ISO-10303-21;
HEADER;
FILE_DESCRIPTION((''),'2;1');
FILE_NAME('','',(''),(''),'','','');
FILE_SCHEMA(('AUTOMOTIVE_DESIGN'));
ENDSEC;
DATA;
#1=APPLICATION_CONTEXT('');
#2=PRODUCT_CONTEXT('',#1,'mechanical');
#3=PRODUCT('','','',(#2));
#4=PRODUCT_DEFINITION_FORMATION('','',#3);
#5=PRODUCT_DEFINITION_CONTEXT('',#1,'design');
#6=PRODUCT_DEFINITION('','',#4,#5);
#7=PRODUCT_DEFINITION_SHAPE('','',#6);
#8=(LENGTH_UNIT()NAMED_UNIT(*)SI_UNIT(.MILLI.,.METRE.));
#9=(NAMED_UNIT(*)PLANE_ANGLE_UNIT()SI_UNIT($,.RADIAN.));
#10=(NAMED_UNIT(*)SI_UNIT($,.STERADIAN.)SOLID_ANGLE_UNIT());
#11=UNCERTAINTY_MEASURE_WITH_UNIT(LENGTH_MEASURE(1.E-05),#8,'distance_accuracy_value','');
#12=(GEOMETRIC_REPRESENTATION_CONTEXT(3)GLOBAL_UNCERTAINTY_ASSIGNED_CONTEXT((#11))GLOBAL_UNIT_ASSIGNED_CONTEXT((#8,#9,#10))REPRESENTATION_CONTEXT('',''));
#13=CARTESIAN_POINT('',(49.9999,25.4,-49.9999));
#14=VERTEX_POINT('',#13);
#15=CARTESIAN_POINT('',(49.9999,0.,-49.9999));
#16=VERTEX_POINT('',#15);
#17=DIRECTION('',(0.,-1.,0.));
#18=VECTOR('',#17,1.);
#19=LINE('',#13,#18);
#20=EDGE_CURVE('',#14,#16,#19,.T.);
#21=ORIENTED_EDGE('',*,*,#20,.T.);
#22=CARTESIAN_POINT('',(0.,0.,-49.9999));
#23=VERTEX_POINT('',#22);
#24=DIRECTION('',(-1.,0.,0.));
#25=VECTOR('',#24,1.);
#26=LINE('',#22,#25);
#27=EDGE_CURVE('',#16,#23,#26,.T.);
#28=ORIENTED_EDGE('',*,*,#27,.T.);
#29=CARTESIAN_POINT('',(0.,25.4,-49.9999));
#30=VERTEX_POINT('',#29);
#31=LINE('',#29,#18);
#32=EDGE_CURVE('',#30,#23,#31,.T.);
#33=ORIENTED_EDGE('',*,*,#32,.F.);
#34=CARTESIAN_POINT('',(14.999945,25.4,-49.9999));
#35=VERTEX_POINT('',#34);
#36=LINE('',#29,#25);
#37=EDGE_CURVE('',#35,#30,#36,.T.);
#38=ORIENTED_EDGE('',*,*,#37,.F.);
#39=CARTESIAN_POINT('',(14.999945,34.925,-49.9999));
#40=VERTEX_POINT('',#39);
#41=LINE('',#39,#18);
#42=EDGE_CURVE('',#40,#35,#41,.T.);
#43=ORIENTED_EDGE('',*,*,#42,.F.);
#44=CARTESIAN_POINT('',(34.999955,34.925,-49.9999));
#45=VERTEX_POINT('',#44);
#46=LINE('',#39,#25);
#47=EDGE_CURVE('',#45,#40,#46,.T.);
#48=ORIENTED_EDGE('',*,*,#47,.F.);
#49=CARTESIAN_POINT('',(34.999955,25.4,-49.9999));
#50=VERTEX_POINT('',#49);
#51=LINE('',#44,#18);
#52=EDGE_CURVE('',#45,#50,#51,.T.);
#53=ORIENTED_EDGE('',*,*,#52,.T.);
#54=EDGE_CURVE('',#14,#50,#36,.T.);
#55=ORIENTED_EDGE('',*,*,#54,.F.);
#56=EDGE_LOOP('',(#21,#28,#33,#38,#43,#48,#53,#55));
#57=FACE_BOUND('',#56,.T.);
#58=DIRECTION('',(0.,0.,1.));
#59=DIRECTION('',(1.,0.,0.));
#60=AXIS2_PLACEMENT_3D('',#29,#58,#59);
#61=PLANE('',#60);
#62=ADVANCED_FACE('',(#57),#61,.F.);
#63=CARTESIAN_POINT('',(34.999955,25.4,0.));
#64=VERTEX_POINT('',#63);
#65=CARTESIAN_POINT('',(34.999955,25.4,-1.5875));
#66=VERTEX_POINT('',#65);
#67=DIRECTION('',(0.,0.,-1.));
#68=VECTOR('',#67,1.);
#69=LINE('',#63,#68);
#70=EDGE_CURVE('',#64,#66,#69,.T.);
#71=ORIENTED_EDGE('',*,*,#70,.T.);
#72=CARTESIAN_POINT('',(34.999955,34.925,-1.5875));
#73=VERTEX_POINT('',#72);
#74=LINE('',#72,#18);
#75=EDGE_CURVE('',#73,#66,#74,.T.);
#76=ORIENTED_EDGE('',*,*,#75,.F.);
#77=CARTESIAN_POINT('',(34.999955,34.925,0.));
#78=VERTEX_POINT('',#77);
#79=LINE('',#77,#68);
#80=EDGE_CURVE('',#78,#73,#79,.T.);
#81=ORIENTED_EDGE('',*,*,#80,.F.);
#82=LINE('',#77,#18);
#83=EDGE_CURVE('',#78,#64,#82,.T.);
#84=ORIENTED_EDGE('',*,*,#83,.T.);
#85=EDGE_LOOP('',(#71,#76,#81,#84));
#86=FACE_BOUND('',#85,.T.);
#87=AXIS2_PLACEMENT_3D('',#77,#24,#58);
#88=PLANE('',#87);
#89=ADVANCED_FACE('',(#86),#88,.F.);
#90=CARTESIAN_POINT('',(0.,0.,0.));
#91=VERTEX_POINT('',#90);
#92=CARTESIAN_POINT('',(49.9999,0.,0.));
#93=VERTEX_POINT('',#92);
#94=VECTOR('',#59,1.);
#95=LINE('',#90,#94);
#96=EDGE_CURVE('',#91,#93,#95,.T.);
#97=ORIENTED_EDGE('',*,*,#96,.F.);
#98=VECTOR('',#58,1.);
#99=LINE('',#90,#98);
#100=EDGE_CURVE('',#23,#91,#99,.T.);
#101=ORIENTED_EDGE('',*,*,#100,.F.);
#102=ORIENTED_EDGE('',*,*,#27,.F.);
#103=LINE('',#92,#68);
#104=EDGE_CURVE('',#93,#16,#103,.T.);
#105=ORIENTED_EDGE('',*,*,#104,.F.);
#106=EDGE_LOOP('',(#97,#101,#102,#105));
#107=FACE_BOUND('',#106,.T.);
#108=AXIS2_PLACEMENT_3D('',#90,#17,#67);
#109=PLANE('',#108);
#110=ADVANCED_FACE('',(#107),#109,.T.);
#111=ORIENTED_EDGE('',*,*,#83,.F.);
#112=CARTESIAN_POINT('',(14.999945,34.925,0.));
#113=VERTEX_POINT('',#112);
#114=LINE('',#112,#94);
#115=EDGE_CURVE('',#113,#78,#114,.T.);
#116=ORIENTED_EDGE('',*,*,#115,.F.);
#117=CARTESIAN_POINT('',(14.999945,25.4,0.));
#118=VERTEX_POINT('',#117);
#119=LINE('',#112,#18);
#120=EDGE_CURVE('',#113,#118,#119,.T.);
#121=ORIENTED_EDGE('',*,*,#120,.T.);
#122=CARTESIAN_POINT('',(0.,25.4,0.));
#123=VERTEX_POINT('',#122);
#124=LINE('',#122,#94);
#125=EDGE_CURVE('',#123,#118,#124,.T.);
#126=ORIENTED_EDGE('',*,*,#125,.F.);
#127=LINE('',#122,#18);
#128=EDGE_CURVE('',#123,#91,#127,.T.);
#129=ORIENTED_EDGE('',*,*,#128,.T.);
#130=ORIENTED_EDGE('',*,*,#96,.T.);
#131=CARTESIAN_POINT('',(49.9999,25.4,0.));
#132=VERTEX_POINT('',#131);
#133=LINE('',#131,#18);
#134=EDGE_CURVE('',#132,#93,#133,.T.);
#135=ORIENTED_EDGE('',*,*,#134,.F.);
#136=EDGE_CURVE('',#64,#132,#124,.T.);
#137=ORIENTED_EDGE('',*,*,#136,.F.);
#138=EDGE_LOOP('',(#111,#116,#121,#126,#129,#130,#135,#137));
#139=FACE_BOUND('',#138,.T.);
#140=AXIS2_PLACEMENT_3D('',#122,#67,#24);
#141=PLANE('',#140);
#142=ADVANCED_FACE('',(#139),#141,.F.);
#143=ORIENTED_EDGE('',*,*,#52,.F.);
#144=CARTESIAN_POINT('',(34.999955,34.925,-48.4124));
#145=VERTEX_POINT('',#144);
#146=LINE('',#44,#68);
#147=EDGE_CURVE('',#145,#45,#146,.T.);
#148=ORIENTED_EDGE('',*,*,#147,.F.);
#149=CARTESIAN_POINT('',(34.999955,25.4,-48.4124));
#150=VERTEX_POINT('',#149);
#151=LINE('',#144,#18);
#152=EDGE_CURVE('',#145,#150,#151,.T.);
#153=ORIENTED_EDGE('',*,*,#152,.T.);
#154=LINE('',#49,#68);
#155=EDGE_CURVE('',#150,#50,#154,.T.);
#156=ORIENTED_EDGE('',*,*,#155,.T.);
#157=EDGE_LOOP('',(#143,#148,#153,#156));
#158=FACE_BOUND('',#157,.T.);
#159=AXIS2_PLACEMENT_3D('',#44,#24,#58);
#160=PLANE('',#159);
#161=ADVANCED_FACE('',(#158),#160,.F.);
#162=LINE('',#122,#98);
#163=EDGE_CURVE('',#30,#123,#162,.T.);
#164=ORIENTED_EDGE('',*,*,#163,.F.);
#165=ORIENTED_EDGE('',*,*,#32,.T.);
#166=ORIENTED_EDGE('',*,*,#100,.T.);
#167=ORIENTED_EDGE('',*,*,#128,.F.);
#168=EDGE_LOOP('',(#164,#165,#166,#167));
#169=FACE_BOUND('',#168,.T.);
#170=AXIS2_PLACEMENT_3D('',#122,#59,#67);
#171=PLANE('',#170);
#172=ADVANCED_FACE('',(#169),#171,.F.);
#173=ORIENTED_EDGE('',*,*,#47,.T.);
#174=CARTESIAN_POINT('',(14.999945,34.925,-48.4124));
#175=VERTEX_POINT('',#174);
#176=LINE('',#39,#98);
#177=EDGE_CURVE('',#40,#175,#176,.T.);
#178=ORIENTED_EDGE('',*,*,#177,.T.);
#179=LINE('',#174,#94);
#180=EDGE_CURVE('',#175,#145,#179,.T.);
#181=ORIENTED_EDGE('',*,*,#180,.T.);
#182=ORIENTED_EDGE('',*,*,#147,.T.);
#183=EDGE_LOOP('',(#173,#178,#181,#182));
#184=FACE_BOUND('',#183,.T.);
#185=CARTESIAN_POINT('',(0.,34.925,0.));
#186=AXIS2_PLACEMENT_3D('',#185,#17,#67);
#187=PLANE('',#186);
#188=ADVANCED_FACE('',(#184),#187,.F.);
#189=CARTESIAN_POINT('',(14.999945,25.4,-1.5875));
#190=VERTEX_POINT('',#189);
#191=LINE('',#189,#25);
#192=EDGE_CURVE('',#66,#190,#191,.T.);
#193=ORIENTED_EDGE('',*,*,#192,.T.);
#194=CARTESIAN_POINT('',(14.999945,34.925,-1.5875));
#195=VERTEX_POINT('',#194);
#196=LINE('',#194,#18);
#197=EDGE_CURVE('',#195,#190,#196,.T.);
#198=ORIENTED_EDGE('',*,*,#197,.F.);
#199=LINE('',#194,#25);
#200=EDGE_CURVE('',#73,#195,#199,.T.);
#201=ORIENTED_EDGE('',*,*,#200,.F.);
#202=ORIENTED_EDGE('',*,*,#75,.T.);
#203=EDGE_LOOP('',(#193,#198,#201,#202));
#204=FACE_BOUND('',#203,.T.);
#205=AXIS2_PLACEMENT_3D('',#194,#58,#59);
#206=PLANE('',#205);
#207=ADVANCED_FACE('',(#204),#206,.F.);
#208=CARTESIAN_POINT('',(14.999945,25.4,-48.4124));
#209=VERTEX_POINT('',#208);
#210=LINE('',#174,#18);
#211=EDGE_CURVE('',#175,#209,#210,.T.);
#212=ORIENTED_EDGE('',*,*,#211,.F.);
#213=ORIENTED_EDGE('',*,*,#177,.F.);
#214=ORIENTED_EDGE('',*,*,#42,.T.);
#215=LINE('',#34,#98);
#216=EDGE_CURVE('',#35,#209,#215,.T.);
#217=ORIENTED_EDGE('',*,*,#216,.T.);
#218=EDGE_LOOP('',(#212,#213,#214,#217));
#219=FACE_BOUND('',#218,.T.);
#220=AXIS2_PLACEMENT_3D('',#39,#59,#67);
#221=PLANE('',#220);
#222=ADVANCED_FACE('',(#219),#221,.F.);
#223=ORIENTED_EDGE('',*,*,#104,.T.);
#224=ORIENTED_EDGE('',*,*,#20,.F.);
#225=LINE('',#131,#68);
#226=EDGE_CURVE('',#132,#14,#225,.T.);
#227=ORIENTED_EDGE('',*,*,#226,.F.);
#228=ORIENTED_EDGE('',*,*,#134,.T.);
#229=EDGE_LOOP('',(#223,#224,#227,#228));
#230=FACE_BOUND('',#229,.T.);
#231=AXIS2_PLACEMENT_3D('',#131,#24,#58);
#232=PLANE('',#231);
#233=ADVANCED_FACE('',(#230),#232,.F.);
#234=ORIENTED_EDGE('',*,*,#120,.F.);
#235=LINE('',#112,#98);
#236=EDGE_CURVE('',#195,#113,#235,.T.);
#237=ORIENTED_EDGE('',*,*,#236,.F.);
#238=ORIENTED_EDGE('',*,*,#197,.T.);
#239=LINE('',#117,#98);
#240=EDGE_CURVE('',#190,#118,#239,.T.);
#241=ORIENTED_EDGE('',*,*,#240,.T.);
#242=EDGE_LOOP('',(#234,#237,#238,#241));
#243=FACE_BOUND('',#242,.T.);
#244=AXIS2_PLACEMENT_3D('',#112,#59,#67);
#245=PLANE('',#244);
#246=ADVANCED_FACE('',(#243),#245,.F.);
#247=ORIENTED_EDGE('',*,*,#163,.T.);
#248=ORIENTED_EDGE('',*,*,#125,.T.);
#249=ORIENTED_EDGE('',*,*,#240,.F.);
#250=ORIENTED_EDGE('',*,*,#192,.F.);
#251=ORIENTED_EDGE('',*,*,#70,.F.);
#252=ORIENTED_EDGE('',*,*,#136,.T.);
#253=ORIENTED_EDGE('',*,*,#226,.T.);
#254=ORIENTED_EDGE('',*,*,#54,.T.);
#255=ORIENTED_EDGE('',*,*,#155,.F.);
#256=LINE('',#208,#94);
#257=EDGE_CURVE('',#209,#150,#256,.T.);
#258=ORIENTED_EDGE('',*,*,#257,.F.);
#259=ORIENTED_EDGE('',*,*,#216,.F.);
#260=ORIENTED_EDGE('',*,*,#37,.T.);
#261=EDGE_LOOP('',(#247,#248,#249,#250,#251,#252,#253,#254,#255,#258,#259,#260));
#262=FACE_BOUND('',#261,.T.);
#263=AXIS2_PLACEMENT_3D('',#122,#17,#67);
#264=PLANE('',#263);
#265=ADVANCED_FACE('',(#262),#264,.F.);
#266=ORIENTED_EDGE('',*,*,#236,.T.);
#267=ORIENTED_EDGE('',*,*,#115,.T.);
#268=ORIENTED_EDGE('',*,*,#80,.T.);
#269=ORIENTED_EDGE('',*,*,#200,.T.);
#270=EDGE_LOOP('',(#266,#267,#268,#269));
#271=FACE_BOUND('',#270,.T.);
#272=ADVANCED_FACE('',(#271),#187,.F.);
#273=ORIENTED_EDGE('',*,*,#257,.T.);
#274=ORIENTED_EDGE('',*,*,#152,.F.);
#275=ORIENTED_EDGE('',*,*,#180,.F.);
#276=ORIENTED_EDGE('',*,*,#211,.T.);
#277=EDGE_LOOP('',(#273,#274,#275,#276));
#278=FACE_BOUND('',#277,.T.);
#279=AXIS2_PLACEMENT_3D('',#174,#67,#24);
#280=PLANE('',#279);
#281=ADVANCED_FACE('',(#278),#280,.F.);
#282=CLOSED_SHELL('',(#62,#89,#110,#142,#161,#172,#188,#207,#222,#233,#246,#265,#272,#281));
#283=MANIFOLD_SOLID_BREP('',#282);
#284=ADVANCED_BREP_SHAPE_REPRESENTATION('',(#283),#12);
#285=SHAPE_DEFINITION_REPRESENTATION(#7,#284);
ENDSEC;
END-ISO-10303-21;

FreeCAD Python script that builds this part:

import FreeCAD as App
import Part
import Sketcher
from FreeCAD import Vector
Q = App.Units.Quantity

doc = App.newDocument("Part")
body = doc.addObject("PartDesign::Body", "Body")

sketch1 = doc.addObject("Sketcher::SketchObject", "Sketch")
body.addObject(sketch1)
sketch1.AttachmentSupport = (doc.XZ_Plane, [""])
sketch1.MapMode = "FlatFace"
sketch1.addGeometry(Part.LineSegment(Vector(0, -50, 0), Vector(0, 0, 0)), False)
sketch1.addGeometry(Part.LineSegment(Vector(0, 0, 0), Vector(50, 0, 0)), False)
sketch1.addGeometry(Part.LineSegment(Vector(50, 0, 0), Vector(50, -50, 0)), False)
sketch1.addGeometry(Part.LineSegment(Vector(50, -50, 0), Vector(0, -50, 0)), False)
sketch1.addConstraint(Sketcher.Constraint("Coincident", 0, 2, 1, 1))
sketch1.addConstraint(Sketcher.Constraint("Coincident", 1, 2, 2, 1))
sketch1.addConstraint(Sketcher.Constraint("Coincident", 2, 2, 3, 1))
sketch1.addConstraint(Sketcher.Constraint("Coincident", 3, 2, 0, 1))
sketch1.addConstraint(Sketcher.Constraint("Vertical", 0))
sketch1.addConstraint(Sketcher.Constraint("Horizontal", 1))
sketch1.addConstraint(Sketcher.Constraint("Vertical", 2))
sketch1.addConstraint(Sketcher.Constraint("Horizontal", 3))
sketch1.addConstraint(Sketcher.Constraint("Coincident", 0, 2, -1, 1))
sketch1.addConstraint(Sketcher.Constraint("Equal", 3, 0))
sketch1.addConstraint(Sketcher.Constraint("DistanceX", 1, 1, 1, 2, Q("1.9685 in")))
pad1 = doc.addObject("PartDesign::Pad", "Pad")
body.addObject(pad1)
pad1.Profile = sketch1
pad1.Length = Q("1 in")
pad1.Reversed = True

sketch2 = doc.addObject("Sketcher::SketchObject", "Sketch001")
body.addObject(sketch2)
sketch2.AttachmentSupport = (doc.XZ_Plane, [""])
sketch2.MapMode = "FlatFace"
sketch2.AttachmentOffset = App.Placement(Vector(0, 0, -1 * 25.4), App.Rotation())
sketch2.addGeometry(Part.LineSegment(Vector(15, -1.6, 0), Vector(15, 0, 0)), False)
sketch2.addGeometry(Part.LineSegment(Vector(15, 0, 0), Vector(35, 0, 0)), False)
sketch2.addGeometry(Part.LineSegment(Vector(35, 0, 0), Vector(35, -1.6, 0)), False)
sketch2.addGeometry(Part.LineSegment(Vector(35, -1.6, 0), Vector(15, -1.6, 0)), False)
sketch2.addGeometry(Part.LineSegment(Vector(15, -50, 0), Vector(15, -48.4, 0)), False)
sketch2.addGeometry(Part.LineSegment(Vector(15, -48.4, 0), Vector(35, -48.4, 0)), False)
sketch2.addGeometry(Part.LineSegment(Vector(35, -48.4, 0), Vector(35, -50, 0)), False)
sketch2.addGeometry(Part.LineSegment(Vector(35, -50, 0), Vector(15, -50, 0)), False)
sketch2.addConstraint(Sketcher.Constraint("Coincident", 0, 2, 1, 1))
sketch2.addConstraint(Sketcher.Constraint("Coincident", 1, 2, 2, 1))
sketch2.addConstraint(Sketcher.Constraint("Coincident", 2, 2, 3, 1))
sketch2.addConstraint(Sketcher.Constraint("Coincident", 3, 2, 0, 1))
sketch2.addConstraint(Sketcher.Constraint("Coincident", 4, 2, 5, 1))
sketch2.addConstraint(Sketcher.Constraint("Coincident", 5, 2, 6, 1))
sketch2.addConstraint(Sketcher.Constraint("Coincident", 6, 2, 7, 1))
sketch2.addConstraint(Sketcher.Constraint("Coincident", 7, 2, 4, 1))
sketch2.addConstraint(Sketcher.Constraint("Vertical", 0))
sketch2.addConstraint(Sketcher.Constraint("Horizontal", 1))
sketch2.addConstraint(Sketcher.Constraint("Vertical", 2))
sketch2.addConstraint(Sketcher.Constraint("Horizontal", 3))
sketch2.addConstraint(Sketcher.Constraint("Vertical", 4))
sketch2.addConstraint(Sketcher.Constraint("Horizontal", 5))
sketch2.addConstraint(Sketcher.Constraint("Vertical", 6))
sketch2.addConstraint(Sketcher.Constraint("Horizontal", 7))
sketch2.addConstraint(Sketcher.Constraint("PointOnObject", 0, 2, -1))
sketch2.addConstraint(Sketcher.Constraint("Vertical", 3, 2, 4, 2))
sketch2.addConstraint(Sketcher.Constraint("Vertical", 2, 2, 5, 2))
sketch2.addConstraint(Sketcher.Constraint("Equal", 2, 4))
sketch2.addConstraint(Sketcher.Constraint("DistanceY", 0, 1, 0, 2, Q("0.0625 in")))
sketch2.addConstraint(Sketcher.Constraint("DistanceY", 4, 2, -1, 1, Q("1.906 in")))
sketch2.addConstraint(Sketcher.Constraint("DistanceX", 1, 1, 1, 2, Q("20.000011 mm")))
sketch2.addConstraint(Sketcher.Constraint("DistanceX", -1, 1, 0, 2, Q("14.999945 mm")))
pad2 = doc.addObject("PartDesign::Pad", "Pad001")
body.addObject(pad2)
pad2.Profile = sketch2
pad2.Length = Q("0.375 in")
pad2.Reversed = True

doc.recompute()
